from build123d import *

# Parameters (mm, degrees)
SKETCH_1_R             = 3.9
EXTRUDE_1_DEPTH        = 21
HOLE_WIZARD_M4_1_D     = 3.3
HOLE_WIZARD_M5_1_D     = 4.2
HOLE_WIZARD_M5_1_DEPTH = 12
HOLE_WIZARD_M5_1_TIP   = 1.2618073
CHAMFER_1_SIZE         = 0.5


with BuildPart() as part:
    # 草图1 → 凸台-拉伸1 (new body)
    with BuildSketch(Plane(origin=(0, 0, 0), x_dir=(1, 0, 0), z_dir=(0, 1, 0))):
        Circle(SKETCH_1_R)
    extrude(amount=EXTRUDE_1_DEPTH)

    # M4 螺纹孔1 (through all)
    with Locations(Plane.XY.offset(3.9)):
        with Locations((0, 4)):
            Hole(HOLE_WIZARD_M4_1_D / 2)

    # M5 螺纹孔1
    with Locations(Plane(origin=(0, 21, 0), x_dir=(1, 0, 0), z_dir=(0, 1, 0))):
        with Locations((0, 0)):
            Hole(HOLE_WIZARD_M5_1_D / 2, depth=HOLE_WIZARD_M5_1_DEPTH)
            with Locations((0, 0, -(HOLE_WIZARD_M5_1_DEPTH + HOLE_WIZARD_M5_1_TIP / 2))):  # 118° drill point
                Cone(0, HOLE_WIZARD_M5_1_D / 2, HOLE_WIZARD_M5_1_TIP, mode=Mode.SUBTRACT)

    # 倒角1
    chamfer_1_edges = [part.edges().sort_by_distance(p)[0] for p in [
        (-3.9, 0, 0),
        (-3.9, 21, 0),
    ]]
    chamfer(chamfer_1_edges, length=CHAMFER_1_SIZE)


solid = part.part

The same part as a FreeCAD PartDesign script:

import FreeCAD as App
import Part
import Sketcher


def edges_at(feature, points):
    """Names of the edges that pass closest to the given points."""
    edges = feature.Shape.Edges
    near = lambda p: min(range(len(edges)), key=lambda i: edges[i].distToShape(Part.Vertex(*p))[0])
    return sorted({f"Edge{near(p) + 1}" for p in points})

doc = App.newDocument("Part")
body = doc.addObject("PartDesign::Body", "Body")

sketch1 = doc.addObject("Sketcher::SketchObject", "Sketch")
body.addObject(sketch1)
sketch1.AttachmentSupport = (doc.XZ_Plane, [""])
sketch1.MapMode = "FlatFace"
sketch1.addGeometry(Part.Circle(App.Vector(0, 0, 0), App.Vector(0, 0, 1), 3.9), False)
sketch1.addConstraint([
    Sketcher.Constraint("Coincident", 0, 3, -1, 1),
    Sketcher.Constraint("Diameter", 0, 7.8),
])
pad1 = doc.addObject("PartDesign::Pad", "Pad")
body.addObject(pad1)
pad1.Profile = sketch1
pad1.Length = 21
pad1.Reversed = True

sketch2 = doc.addObject("Sketcher::SketchObject", "Sketch001")
body.addObject(sketch2)
sketch2.AttachmentSupport = (doc.XY_Plane, [""])
sketch2.MapMode = "FlatFace"
sketch2.AttachmentOffset = App.Placement(App.Vector(0, 0, 3.9), App.Rotation())
sketch2.addGeometry(Part.Circle(App.Vector(0, 4, 0), App.Vector(0, 0, 1), 1.65), False)
sketch2.addConstraint([
    Sketcher.Constraint("PointOnObject", 0, 3, -2),
    Sketcher.Constraint("Diameter", 0, 3.3),
    Sketcher.Constraint("DistanceY", -1, 1, 0, 3, 4.0),
])
doc.recompute()
hole = doc.addObject("PartDesign::Hole", "Hole")
body.addObject(hole)
hole.Profile = sketch2
hole.ThreadType = "None"
hole.Diameter = 3.3
hole.DepthType = "ThroughAll"

sketch3 = doc.addObject("Sketcher::SketchObject", "Sketch002")
body.addObject(sketch3)
sketch3.AttachmentSupport = (doc.XZ_Plane, [""])
sketch3.MapMode = "FlatFace"
sketch3.AttachmentOffset = App.Placement(App.Vector(0, 0, -21), App.Rotation())
sketch3.addGeometry(Part.Circle(App.Vector(0, 0, 0), App.Vector(0, 0, 1), 2.1), False)
sketch3.addConstraint([
    Sketcher.Constraint("Coincident", 0, 3, -1, 1),
    Sketcher.Constraint("Diameter", 0, 4.2),
])
doc.recompute()
hole2 = doc.addObject("PartDesign::Hole", "Hole001")
body.addObject(hole2)
hole2.Profile = sketch3
hole2.ThreadType = "None"
hole2.Diameter = 4.2
hole2.DepthType = "Dimension"
hole2.Depth = 12
hole2.DrillPoint = "Angled"
hole2.DrillPointAngle = 118
hole2.Reversed = True
doc.recompute()

chamfer = doc.addObject("PartDesign::Chamfer", "Chamfer")
body.addObject(chamfer)
chamfer.Base = (hole2, edges_at(hole2, [(-3.9, 0, 0), (-3.9, 21, 0)]))
chamfer.Size = 0.5

doc.recompute()
